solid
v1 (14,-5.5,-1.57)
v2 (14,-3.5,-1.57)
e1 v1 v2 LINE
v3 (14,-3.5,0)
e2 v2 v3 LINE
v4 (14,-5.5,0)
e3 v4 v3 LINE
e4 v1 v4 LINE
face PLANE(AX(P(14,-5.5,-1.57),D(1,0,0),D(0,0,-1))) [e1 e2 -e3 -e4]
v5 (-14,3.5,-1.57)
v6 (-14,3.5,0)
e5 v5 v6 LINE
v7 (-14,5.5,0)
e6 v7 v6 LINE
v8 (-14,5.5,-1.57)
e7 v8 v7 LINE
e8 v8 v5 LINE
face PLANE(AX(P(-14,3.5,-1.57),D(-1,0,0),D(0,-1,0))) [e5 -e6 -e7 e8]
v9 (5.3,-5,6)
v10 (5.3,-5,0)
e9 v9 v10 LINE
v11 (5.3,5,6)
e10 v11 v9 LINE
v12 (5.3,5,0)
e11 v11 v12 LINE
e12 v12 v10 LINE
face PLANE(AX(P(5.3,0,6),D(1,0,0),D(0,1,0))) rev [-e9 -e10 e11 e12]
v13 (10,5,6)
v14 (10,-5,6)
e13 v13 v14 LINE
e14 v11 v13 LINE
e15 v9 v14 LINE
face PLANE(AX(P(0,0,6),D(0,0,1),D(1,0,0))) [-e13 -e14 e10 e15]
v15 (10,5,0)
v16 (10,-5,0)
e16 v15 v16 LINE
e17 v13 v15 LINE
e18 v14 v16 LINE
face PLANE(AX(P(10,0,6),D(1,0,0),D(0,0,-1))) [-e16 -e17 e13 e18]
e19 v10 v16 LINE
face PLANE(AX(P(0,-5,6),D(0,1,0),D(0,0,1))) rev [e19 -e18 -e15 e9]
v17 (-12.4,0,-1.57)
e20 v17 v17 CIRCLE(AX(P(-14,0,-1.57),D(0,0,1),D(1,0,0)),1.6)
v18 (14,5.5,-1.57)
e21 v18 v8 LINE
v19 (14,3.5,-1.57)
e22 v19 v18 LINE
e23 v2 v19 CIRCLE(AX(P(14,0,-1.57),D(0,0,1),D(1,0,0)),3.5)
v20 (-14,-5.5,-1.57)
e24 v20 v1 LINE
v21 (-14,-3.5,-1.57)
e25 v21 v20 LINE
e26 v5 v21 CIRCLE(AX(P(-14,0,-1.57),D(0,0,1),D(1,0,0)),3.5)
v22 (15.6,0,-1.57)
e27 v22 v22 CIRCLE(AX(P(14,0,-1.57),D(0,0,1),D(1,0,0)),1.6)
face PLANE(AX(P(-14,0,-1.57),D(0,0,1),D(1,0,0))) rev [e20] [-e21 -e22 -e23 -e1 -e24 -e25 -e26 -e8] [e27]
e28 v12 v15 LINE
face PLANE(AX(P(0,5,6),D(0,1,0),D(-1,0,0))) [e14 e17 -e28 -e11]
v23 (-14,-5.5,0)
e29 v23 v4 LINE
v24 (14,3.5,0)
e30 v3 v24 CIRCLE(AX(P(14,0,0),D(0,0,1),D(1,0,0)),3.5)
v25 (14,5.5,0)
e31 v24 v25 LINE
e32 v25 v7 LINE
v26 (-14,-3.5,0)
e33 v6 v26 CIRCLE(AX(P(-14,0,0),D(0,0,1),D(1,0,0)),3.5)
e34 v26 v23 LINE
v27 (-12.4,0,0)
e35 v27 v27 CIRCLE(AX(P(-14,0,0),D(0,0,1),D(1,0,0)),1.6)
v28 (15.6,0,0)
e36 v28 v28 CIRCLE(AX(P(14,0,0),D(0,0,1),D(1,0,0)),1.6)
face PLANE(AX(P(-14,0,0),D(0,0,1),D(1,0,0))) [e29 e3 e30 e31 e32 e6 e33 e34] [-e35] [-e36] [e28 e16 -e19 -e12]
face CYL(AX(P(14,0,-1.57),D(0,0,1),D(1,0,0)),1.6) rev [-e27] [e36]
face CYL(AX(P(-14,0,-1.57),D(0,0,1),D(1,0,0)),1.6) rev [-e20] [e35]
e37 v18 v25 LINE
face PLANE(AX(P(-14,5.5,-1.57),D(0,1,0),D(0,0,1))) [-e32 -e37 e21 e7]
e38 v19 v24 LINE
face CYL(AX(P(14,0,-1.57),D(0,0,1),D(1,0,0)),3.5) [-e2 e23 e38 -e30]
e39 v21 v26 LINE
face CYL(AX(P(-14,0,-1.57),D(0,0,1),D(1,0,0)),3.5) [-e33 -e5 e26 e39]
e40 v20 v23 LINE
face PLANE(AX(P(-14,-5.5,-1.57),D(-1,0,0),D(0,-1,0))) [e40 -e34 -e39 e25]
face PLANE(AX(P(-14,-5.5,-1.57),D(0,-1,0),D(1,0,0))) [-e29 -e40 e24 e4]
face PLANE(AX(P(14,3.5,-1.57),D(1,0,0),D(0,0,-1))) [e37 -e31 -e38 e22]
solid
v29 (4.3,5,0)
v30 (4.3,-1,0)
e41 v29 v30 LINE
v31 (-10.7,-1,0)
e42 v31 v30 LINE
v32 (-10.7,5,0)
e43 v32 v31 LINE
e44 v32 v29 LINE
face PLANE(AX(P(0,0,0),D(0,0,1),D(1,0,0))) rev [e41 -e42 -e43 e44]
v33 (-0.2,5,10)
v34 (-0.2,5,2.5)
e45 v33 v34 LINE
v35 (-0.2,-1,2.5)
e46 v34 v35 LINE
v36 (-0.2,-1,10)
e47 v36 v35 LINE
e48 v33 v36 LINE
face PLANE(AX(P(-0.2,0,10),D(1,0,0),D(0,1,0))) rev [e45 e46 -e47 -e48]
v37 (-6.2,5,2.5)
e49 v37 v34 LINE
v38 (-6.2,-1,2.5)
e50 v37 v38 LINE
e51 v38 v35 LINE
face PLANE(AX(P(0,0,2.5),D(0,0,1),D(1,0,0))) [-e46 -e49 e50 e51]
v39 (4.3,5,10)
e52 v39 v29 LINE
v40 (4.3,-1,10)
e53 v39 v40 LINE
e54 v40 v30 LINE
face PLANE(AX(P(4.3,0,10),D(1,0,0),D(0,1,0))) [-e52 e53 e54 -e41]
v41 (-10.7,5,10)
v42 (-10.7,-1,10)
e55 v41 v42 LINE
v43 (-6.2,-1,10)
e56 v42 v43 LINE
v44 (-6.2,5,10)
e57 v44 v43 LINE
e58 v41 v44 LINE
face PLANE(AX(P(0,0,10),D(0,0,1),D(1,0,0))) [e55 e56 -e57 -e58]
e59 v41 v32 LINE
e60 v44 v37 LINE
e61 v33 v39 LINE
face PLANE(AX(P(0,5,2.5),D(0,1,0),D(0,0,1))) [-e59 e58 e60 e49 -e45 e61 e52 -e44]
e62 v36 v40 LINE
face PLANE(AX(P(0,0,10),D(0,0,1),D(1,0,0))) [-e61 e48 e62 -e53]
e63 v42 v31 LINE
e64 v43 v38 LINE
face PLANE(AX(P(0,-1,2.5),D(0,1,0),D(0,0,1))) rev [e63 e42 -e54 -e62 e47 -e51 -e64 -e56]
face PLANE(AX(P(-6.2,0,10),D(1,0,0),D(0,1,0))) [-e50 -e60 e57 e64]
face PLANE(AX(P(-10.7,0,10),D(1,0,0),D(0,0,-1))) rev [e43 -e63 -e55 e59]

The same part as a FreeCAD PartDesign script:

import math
import FreeCAD as App
import Part
import Sketcher

doc = App.newDocument("Part")
params = doc.addObject("Spreadsheet::Sheet", "Params")
for row, (alias, value) in enumerate([
    ("sketch1_diameter", "3.2 mm"),
    ("sketch1_radius", "3.5 mm"),
    ("sketch1_width", "28 mm"),
    ("sketch1_height", "2 mm"),
    ("pad1_length", "1.57 mm"),
    ("sketch2_height", "10 mm"),
    ("sketch2_width", "4.7 mm"),
    ("pad2_length", "6 mm"),
    ("sketch3_width", "6 mm"),
    ("pad3_length", "2.5 mm"),
    ("sketch4_height", "6 mm"),
    ("sketch4_width", "4.5 mm"),
    ("pad4_length", "10 mm"),
], start=1):
    params.set(f"A{row}", alias)
    params.set(f"B{row}", "=" + value)
    params.setAlias(f"B{row}", alias)

body = doc.addObject("PartDesign::Body", "Body")

sketch1 = body.newObject("Sketcher::SketchObject", "Sketch")
sketch1.AttachmentSupport = (doc.getObject("XY_Plane"), [""])
sketch1.MapMode = "FlatFace"
sketch1.addGeometry([
    Part.LineSegment(App.Vector(-14, 5.5, 0), App.Vector(-14, 3.5, 0)),
    Part.ArcOfCircle(Part.Circle(App.Vector(-14, 0, 0), App.Vector(0, 0, 1), 3.5), math.radians(90), math.radians(270)),
    Part.LineSegment(App.Vector(-14, -3.5, 0), App.Vector(-14, -5.5, 0)),
    Part.LineSegment(App.Vector(-14, -5.5, 0), App.Vector(14, -5.5, 0)),
    Part.LineSegment(App.Vector(14, -5.5, 0), App.Vector(14, -3.5, 0)),
    Part.ArcOfCircle(Part.Circle(App.Vector(14, 0, 0), App.Vector(0, 0, 1), 3.5), math.radians(-90), math.radians(90)),
    Part.LineSegment(App.Vector(14, 3.5, 0), App.Vector(14, 5.5, 0)),
    Part.LineSegment(App.Vector(14, 5.5, 0), App.Vector(-14, 5.5, 0)),
    Part.Circle(App.Vector(14, 0, 0), App.Vector(0, 0, 1), 1.6),
    Part.Circle(App.Vector(-14, 0, 0), App.Vector(0, 0, 1), 1.6),
], False)
sketch1.addConstraint([
    Sketcher.Constraint("Coincident", 0, 2, 1, 1),
    Sketcher.Constraint("Coincident", 1, 2, 2, 1),
    Sketcher.Constraint("Coincident", 2, 2, 3, 1),
    Sketcher.Constraint("Coincident", 3, 2, 4, 1),
    Sketcher.Constraint("Coincident", 4, 2, 5, 1),
    Sketcher.Constraint("Coincident", 5, 2, 6, 1),
    Sketcher.Constraint("Coincident", 6, 2, 7, 1),
    Sketcher.Constraint("Coincident", 7, 2, 0, 1),
    Sketcher.Constraint("Vertical", 0),
    Sketcher.Constraint("Vertical", 2),
    Sketcher.Constraint("Horizontal", 3),
    Sketcher.Constraint("Vertical", 4),
    Sketcher.Constraint("Vertical", 6),
    Sketcher.Constraint("Horizontal", 7),
    Sketcher.Constraint("Coincident", 8, 3, 5, 3),
    Sketcher.Constraint("Coincident", 9, 3, 1, 3),
    Sketcher.Constraint("Equal", 1, 5),
    Sketcher.Constraint("Equal", 8, 9),
    Sketcher.Constraint("Symmetric", 1, 3, 5, 3, -1, 1),
    Sketcher.Constraint("Symmetric", 2, 2, 6, 2, -1, 1),
    Sketcher.Constraint("Symmetric", 1, 2, 4, 2, -2),
    Sketcher.Constraint("Vertical", 9, 3, 0, 2),
    Sketcher.Constraint("Vertical", 0, 2, 1, 2),
    Sketcher.Constraint("Diameter", 8, 3.2),
    Sketcher.Constraint("Radius", 1, 3.5),
    Sketcher.Constraint("DistanceX", 3, 1, 3, 2, 28.0),
    Sketcher.Constraint("DistanceY", 0, 2, 0, 1, 2.0),
])
sketch1.setExpression("Constraints[23]", "Params.sketch1_diameter")
sketch1.setExpression("Constraints[24]", "Params.sketch1_radius")
sketch1.setExpression("Constraints[25]", "Params.sketch1_width")
sketch1.setExpression("Constraints[26]", "Params.sketch1_height")
pad1 = body.newObject("PartDesign::Pad", "Pad")
pad1.Profile = sketch1
pad1.setExpression("Length", "Params.pad1_length")
pad1.Reversed = True

sketch2 = body.newObject("Sketcher::SketchObject", "Sketch001")
sketch2.AttachmentSupport = (doc.getObject("XY_Plane"), [""])
sketch2.MapMode = "FlatFace"
sketch2.addGeometry([
    Part.LineSegment(App.Vector(5.3, 5, 0), App.Vector(5.3, -5, 0)),
    Part.LineSegment(App.Vector(5.3, -5, 0), App.Vector(10, -5, 0)),
    Part.LineSegment(App.Vector(10, -5, 0), App.Vector(10, 5, 0)),
    Part.LineSegment(App.Vector(10, 5, 0), App.Vector(5.3, 5, 0)),
], False)
sketch2.addConstraint([
    Sketcher.Constraint("Coincident", 0, 2, 1, 1),
    Sketcher.Constraint("Coincident", 1, 2, 2, 1),
    Sketcher.Constraint("Coincident", 2, 2, 3, 1),
    Sketcher.Constraint("Coincident", 3, 2, 0, 1),
    Sketcher.Constraint("Vertical", 0),
    Sketcher.Constraint("Horizontal", 1),
    Sketcher.Constraint("Vertical", 2),
    Sketcher.Constraint("Horizontal", 3),
    Sketcher.Constraint("DistanceY", 0, 2, 0, 1, 10.0),
    Sketcher.Constraint("DistanceX", 1, 1, 1, 2, 4.7),
    Sketcher.Constraint("DistanceY", 0, 2, -1, 1, 5.0),
    Sketcher.Constraint("DistanceX", -1, 1, 1, 2, 10.0),
])
sketch2.setExpression("Constraints[8]", "Params.sketch2_height")
sketch2.setExpression("Constraints[9]", "Params.sketch2_width")
pad2 = body.newObject("PartDesign::Pad", "Pad001")
pad2.Profile = sketch2
pad2.setExpression("Length", "Params.pad2_length")
body2 = doc.addObject("PartDesign::Body", "Body001")

sketch3 = body2.newObject("Sketcher::SketchObject", "Sketch002")
sketch3.AttachmentSupport = (doc.getObject("XY_Plane001"), [""])
sketch3.MapMode = "FlatFace"
sketch3.addGeometry([
    Part.LineSegment(App.Vector(-6.2, 5, 0), App.Vector(-6.2, -1, 0)),
    Part.LineSegment(App.Vector(-6.2, -1, 0), App.Vector(-0.2, -1, 0)),
    Part.LineSegment(App.Vector(-0.2, -1, 0), App.Vector(-0.2, 5, 0)),
    Part.LineSegment(App.Vector(-0.2, 5, 0), App.Vector(-6.2, 5, 0)),
], False)
sketch3.addConstraint([
    Sketcher.Constraint("Coincident", 0, 2, 1, 1),
    Sketcher.Constraint("Coincident", 1, 2, 2, 1),
    Sketcher.Constraint("Coincident", 2, 2, 3, 1),
    Sketcher.Constraint("Coincident", 3, 2, 0, 1),
    Sketcher.Constraint("Vertical", 0),
    Sketcher.Constraint("Horizontal", 1),
    Sketcher.Constraint("Vertical", 2),
    Sketcher.Constraint("Horizontal", 3),
    Sketcher.Constraint("Equal", 3, 0),
    Sketcher.Constraint("DistanceX", 1, 1, 1, 2, 6.0),
    Sketcher.Constraint("DistanceY", 0, 2, -1, 1, 1.0),
    Sketcher.Constraint("DistanceX", 0, 2, -1, 1, 6.2),
])
sketch3.setExpression("Constraints[9]", "Params.sketch3_width")
pad3 = body2.newObject("PartDesign::Pad", "Pad002")
pad3.Profile = sketch3
pad3.setExpression("Length", "Params.pad3_length")

sketch4 = body2.newObject("Sketcher::SketchObject", "Sketch003")
sketch4.AttachmentSupport = (doc.getObject("XY_Plane001"), [""])
sketch4.MapMode = "FlatFace"
sketch4.addGeometry([
    Part.LineSegment(App.Vector(-10.7, 5, 0), App.Vector(-10.7, -1, 0)),
    Part.LineSegment(App.Vector(-10.7, -1, 0), App.Vector(-6.2, -1, 0)),
    Part.LineSegment(App.Vector(-6.2, -1, 0), App.Vector(-6.2, 5, 0)),
    Part.LineSegment(App.Vector(-6.2, 5, 0), App.Vector(-10.7, 5, 0)),
    Part.LineSegment(App.Vector(-0.2, 5, 0), App.Vector(-0.2, -1, 0)),
    Part.LineSegment(App.Vector(-0.2, -1, 0), App.Vector(4.3, -1, 0)),
    Part.LineSegment(App.Vector(4.3, -1, 0), App.Vector(4.3, 5, 0)),
    Part.LineSegment(App.Vector(4.3, 5, 0), App.Vector(-0.2, 5, 0)),
], False)
sketch4.addConstraint([
    Sketcher.Constraint("Coincident", 0, 2, 1, 1),
    Sketcher.Constraint("Coincident", 1, 2, 2, 1),
    Sketcher.Constraint("Coincident", 2, 2, 3, 1),
    Sketcher.Constraint("Coincident", 3, 2, 0, 1),
    Sketcher.Constraint("Coincident", 4, 2, 5, 1),
    Sketcher.Constraint("Coincident", 5, 2, 6, 1),
    Sketcher.Constraint("Coincident", 6, 2, 7, 1),
    Sketcher.Constraint("Coincident", 7, 2, 4, 1),
    Sketcher.Constraint("Vertical", 0),
    Sketcher.Constraint("Horizontal", 1),
    Sketcher.Constraint("Vertical", 2),
    Sketcher.Constraint("Horizontal", 3),
    Sketcher.Constraint("Vertical", 4),
    Sketcher.Constraint("Horizontal", 5),
    Sketcher.Constraint("Vertical", 6),
    Sketcher.Constraint("Horizontal", 7),
    Sketcher.Constraint("Horizontal", 1, 2, 4, 2),
    Sketcher.Constraint("Horizontal", 3, 2, 6, 2),
    Sketcher.Constraint("Equal", 3, 5),
    Sketcher.Constraint("DistanceY", 0, 2, 0, 1, 6.0),
    Sketcher.Constraint("DistanceX", 1, 1, 1, 2, 4.5),
    Sketcher.Constraint("DistanceY", 0, 2, -1, 1, 1.0),
    Sketcher.Constraint("DistanceX", 1, 2, 4, 2, 6.0),
    Sketcher.Constraint("DistanceX", 0, 2, -1, 1, 10.7),
])
sketch4.setExpression("Constraints[19]", "Params.sketch4_height")
sketch4.setExpression("Constraints[20]", "Params.sketch4_width")
pad4 = body2.newObject("PartDesign::Pad", "Pad003")
pad4.Profile = sketch4
pad4.setExpression("Length", "Params.pad4_length")

doc.recompute()
